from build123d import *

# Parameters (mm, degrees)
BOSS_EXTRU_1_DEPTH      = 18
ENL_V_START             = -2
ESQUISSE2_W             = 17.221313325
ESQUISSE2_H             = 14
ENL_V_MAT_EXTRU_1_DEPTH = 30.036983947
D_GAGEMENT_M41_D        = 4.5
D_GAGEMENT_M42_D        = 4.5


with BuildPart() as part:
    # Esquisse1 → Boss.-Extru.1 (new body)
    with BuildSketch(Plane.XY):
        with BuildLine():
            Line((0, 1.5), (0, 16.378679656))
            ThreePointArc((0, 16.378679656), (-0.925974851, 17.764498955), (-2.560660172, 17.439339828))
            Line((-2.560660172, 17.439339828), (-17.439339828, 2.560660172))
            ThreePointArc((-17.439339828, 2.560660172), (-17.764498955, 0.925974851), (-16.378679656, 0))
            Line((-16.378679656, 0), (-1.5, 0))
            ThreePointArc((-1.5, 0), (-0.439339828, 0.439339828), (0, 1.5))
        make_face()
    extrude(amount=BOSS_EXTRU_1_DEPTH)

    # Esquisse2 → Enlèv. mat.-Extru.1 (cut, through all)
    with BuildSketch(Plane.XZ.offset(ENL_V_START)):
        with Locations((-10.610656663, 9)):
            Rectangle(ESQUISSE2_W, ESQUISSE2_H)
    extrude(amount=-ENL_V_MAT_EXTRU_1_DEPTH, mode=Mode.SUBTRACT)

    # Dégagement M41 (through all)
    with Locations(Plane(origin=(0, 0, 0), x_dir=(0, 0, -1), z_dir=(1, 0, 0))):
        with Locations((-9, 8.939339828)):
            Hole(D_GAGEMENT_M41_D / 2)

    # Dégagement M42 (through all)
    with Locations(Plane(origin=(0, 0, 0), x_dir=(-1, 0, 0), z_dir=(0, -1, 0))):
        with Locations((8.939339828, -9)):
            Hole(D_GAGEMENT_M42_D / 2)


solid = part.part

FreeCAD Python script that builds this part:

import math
import FreeCAD as App
import Part
import Sketcher
from FreeCAD import Vector
Q = App.Units.Quantity


def add_polygon(sketch, points):
    """Adds a closed chain of lines whose ends are joined by coincident constraints."""
    first, n = sketch.GeometryCount, len(points)
    for a, b in zip(points, points[1:] + points[:1]):
        sketch.addGeometry(Part.LineSegment(App.Vector(*a, 0), App.Vector(*b, 0)), False)
    for i in range(n):
        sketch.addConstraint(Sketcher.Constraint("Coincident", first + i, 2, first + (i + 1) % n, 1))

doc = App.newDocument("Part")
body = doc.addObject("PartDesign::Body", "Body")

sketch1 = body.newObject("Sketcher::SketchObject", "Sketch")
sketch1.AttachmentSupport = (doc.getObject("XY_Plane"), [""])
sketch1.MapMode = "FlatFace"
sketch1.addGeometry([
    Part.LineSegment(Vector(0, 1.5, 0), Vector(0, 16.4, 0)),
    Part.ArcOfCircle(Part.Circle(Vector(-1.5, 16.4, 0), Vector(0, 0, 1), 1.5), math.radians(0), math.radians(135)),
    Part.LineSegment(Vector(-2.6, 17.4, 0), Vector(-17.4, 2.6, 0)),
    Part.ArcOfCircle(Part.Circle(Vector(-16.4, 1.5, 0), Vector(0, 0, 1), 1.5), math.radians(135), math.radians(270)),
    Part.LineSegment(Vector(-16.4, 0, 0), Vector(-1.5, 0, 0)),
    Part.ArcOfCircle(Part.Circle(Vector(-1.5, 1.5, 0), Vector(0, 0, 1), 1.5), math.radians(-90), math.radians(0)),
], False)
sketch1.addConstraint([
    Sketcher.Constraint("Tangent", 0, 2, 1, 1),
    Sketcher.Constraint("Tangent", 1, 2, 2, 1),
    Sketcher.Constraint("Tangent", 2, 2, 3, 1),
    Sketcher.Constraint("Tangent", 3, 2, 4, 1),
    Sketcher.Constraint("Tangent", 4, 2, 5, 1),
    Sketcher.Constraint("Tangent", 5, 2, 0, 1),
    Sketcher.Constraint("Vertical", 0),
    Sketcher.Constraint("Horizontal", 4),
    Sketcher.Constraint("Equal", 1, 3),
    Sketcher.Constraint("Equal", 3, 5),
    Sketcher.Constraint("PointOnObject", 0, 2, -2),
    Sketcher.Constraint("PointOnObject", 3, 2, -1),
    Sketcher.Constraint("Equal", 4, 0),
    Sketcher.Constraint("Radius", 1, Q("1.5 mm")),
    Sketcher.Constraint("DistanceX", 4, 1, 4, 2, Q("14.87868 mm")),
])
pad1 = body.newObject("PartDesign::Pad", "Pad")
pad1.Profile = sketch1
pad1.Length = 18

sketch2 = body.newObject("Sketcher::SketchObject", "Sketch001")
sketch2.AttachmentSupport = (doc.getObject("XZ_Plane"), [""])
sketch2.MapMode = "FlatFace"
sketch2.AttachmentOffset = App.Placement(Vector(0, 0, -2), App.Rotation())
add_polygon(sketch2, [(-19, 16), (-19, 2), (-2, 2), (-2, 16)])
sketch2.addConstraint([
    Sketcher.Constraint("Vertical", 0),
    Sketcher.Constraint("Horizontal", 1),
    Sketcher.Constraint("Vertical", 2),
    Sketcher.Constraint("Horizontal", 3),
    Sketcher.Constraint("DistanceY", 0, 2, 0, 1, Q("14 mm")),
    Sketcher.Constraint("DistanceY", -1, 1, 0, 2, Q("2 mm")),
    Sketcher.Constraint("DistanceX", 1, 2, -1, 1, Q("2 mm")),
    Sketcher.Constraint("DistanceX", 1, 1, 1, 2, Q("17.221313 mm")),
])
pocket1 = body.newObject("PartDesign::Pocket", "Pocket")
pocket1.Profile = sketch2
pocket1.Type = "ThroughAll"

sketch3 = body.newObject("Sketcher::SketchObject", "Sketch002")
sketch3.AttachmentSupport = (doc.getObject("YZ_Plane"), [""])
sketch3.MapMode = "FlatFace"
sketch3.addGeometry(Part.Circle(Vector(8.9, 9, 0), Vector(0, 0, 1), 2.2), False)
sketch3.addConstraint([
    Sketcher.Constraint("Diameter", 0, Q("4.5 mm")),
    Sketcher.Constraint("DistanceY", -1, 1, 0, 3, Q("9 mm")),
    Sketcher.Constraint("DistanceX", -1, 1, 0, 3, Q("8.93934 mm")),
])
doc.recompute()
hole = body.newObject("PartDesign::Hole", "Hole")
hole.Profile = sketch3
hole.ThreadType = "None"
hole.Diameter = 4.5
hole.DepthType = "ThroughAll"

sketch4 = body.newObject("Sketcher::SketchObject", "Sketch003")
sketch4.AttachmentSupport = (doc.getObject("XZ_Plane"), [""])
sketch4.MapMode = "FlatFace"
sketch4.addGeometry(Part.Circle(Vector(-8.9, 9, 0), Vector(0, 0, 1), 2.2), False)
sketch4.addConstraint([
    Sketcher.Constraint("Diameter", 0, Q("4.5 mm")),
    Sketcher.Constraint("DistanceY", -1, 1, 0, 3, Q("9 mm")),
    Sketcher.Constraint("DistanceX", 0, 3, -1, 1, Q("8.93934 mm")),
])
doc.recompute()
hole2 = body.newObject("PartDesign::Hole", "Hole001")
hole2.Profile = sketch4
hole2.ThreadType = "None"
hole2.Diameter = 4.5
hole2.DepthType = "ThroughAll"

doc.recompute()
